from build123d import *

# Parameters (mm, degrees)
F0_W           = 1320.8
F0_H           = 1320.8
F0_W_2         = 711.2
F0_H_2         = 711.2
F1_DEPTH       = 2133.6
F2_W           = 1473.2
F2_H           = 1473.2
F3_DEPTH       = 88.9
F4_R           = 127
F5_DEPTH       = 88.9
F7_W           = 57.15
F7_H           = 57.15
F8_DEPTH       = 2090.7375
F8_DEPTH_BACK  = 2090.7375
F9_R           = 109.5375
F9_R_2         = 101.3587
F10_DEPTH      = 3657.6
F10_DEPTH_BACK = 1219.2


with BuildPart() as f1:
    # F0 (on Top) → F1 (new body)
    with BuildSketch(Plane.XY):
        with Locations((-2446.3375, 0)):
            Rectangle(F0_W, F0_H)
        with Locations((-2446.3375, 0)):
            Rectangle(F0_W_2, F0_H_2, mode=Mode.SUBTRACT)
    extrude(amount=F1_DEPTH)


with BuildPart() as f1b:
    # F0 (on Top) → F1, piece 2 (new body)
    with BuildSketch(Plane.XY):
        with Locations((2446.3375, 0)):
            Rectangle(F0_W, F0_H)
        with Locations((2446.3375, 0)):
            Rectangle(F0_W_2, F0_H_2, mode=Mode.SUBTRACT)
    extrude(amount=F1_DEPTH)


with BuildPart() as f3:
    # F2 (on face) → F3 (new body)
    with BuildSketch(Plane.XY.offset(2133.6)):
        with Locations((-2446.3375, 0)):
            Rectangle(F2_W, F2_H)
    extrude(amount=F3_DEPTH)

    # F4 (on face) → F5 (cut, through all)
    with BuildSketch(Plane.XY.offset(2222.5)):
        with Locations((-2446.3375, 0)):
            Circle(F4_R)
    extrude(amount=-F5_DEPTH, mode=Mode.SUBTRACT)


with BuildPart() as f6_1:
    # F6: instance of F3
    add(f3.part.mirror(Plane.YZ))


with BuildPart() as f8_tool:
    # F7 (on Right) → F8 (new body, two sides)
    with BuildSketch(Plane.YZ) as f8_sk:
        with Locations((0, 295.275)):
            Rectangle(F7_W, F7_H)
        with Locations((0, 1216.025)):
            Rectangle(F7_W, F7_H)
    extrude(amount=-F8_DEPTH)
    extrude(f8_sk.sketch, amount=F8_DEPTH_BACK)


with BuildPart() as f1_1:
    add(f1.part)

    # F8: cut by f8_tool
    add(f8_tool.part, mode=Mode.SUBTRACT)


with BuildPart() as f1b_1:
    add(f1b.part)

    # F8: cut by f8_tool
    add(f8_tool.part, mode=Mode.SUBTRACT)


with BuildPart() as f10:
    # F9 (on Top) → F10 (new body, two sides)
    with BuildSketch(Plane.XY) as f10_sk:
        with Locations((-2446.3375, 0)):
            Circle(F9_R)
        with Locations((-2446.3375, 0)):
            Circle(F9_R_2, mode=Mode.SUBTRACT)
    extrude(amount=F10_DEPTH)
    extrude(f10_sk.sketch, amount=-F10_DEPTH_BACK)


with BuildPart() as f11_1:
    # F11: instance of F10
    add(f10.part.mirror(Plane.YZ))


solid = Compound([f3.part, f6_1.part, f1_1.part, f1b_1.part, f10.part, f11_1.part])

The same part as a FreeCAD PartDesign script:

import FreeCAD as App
import Part
import Sketcher

V = App.Vector
Q = App.Units.Quantity

doc = App.newDocument("Part")
params = doc.addObject("Spreadsheet::Sheet", "Params")
for row, (alias, value) in enumerate([
    ("sketch1_width", "52 in"),
    ("sketch1_width2", "28 in"),
    ("pad1_length", "84 in"),
    ("sketch2_width", "52 in"),
    ("sketch2_width2", "28 in"),
    ("pad2_length", "84 in"),
    ("sketch3_width", "58 in"),
    ("pad3_length", "3.5 in"),
    ("sketch4_diameter", "10 in"),
    ("sketch5_width", "2.25 in"),
    ("pad4_length", "82.3125 in"),
    ("pad4_length2", "82.3125 in"),
    ("sketch6_diameter", "8.625 in"),
    ("sketch6_diameter2", "7.981 in"),
    ("pad5_length", "144 in"),
    ("pad5_length2", "48 in"),
], start=1):
    params.set(f"A{row}", alias)
    params.set(f"B{row}", "=" + value)
    params.setAlias(f"B{row}", alias)

body = doc.addObject("PartDesign::Body", "Body")

# Sketch on XY plane
sketch1 = body.newObject("Sketcher::SketchObject", "Sketch")
sketch1.AttachmentSupport = (doc.getObject("XY_Plane"), [""])
sketch1.MapMode = "FlatFace"
sketch1.addGeometry(Part.LineSegment(V(-3106.7375, 660.4, 0), V(-3106.7375, -660.4, 0)), False)
sketch1.addGeometry(Part.LineSegment(V(-3106.7375, -660.4, 0), V(-1785.9375, -660.4, 0)), False)
sketch1.addGeometry(Part.LineSegment(V(-1785.9375, -660.4, 0), V(-1785.9375, 660.4, 0)), False)
sketch1.addGeometry(Part.LineSegment(V(-1785.9375, 660.4, 0), V(-3106.7375, 660.4, 0)), False)
sketch1.addGeometry(Part.LineSegment(V(-2090.7375, -355.6, 0), V(-2801.9375, -355.6, 0)), False)
sketch1.addGeometry(Part.LineSegment(V(-2801.9375, -355.6, 0), V(-2801.9375, 355.6, 0)), False)
sketch1.addGeometry(Part.LineSegment(V(-2801.9375, 355.6, 0), V(-2090.7375, 355.6, 0)), False)
sketch1.addGeometry(Part.LineSegment(V(-2090.7375, 355.6, 0), V(-2090.7375, -355.6, 0)), False)
sketch1.addConstraint(Sketcher.Constraint("Coincident", 0, 2, 1, 1))
sketch1.addConstraint(Sketcher.Constraint("Coincident", 1, 2, 2, 1))
sketch1.addConstraint(Sketcher.Constraint("Coincident", 2, 2, 3, 1))
sketch1.addConstraint(Sketcher.Constraint("Coincident", 3, 2, 0, 1))
sketch1.addConstraint(Sketcher.Constraint("Coincident", 4, 2, 5, 1))
sketch1.addConstraint(Sketcher.Constraint("Coincident", 5, 2, 6, 1))
sketch1.addConstraint(Sketcher.Constraint("Coincident", 6, 2, 7, 1))
sketch1.addConstraint(Sketcher.Constraint("Coincident", 7, 2, 4, 1))
sketch1.addConstraint(Sketcher.Constraint("Vertical", 0))
sketch1.addConstraint(Sketcher.Constraint("Horizontal", 1))
sketch1.addConstraint(Sketcher.Constraint("Vertical", 2))
sketch1.addConstraint(Sketcher.Constraint("Horizontal", 3))
sketch1.addConstraint(Sketcher.Constraint("Horizontal", 4))
sketch1.addConstraint(Sketcher.Constraint("Vertical", 5))
sketch1.addConstraint(Sketcher.Constraint("Horizontal", 6))
sketch1.addConstraint(Sketcher.Constraint("Vertical", 7))
sketch1.addConstraint(Sketcher.Constraint("Equal", 3, 0))
sketch1.addConstraint(Sketcher.Constraint("Equal", 6, 5))
sketch1.addConstraint(Sketcher.Constraint("DistanceX", 1, 1, 1, 2, Q("52 in")))
sketch1.addConstraint(Sketcher.Constraint("DistanceX", 4, 2, 4, 1, Q("28 in")))
sketch1.addConstraint(Sketcher.Constraint("DistanceY", 0, 2, -1, 1, Q("26 in")))
sketch1.addConstraint(Sketcher.Constraint("DistanceY", 4, 2, -1, 1, Q("14 in")))
sketch1.addConstraint(Sketcher.Constraint("DistanceX", 0, 2, 4, 2, Q("12 in")))
sketch1.addConstraint(Sketcher.Constraint("DistanceX", 0, 2, -1, 1, Q("122.3125 in")))
sketch1.setExpression("Constraints[18]", "Params.sketch1_width")
sketch1.setExpression("Constraints[19]", "Params.sketch1_width2")
pad1 = body.newObject("PartDesign::Pad", "Pad")
pad1.Profile = sketch1
pad1.setExpression("Length", "Params.pad1_length")
body2 = doc.addObject("PartDesign::Body", "Body001")

# Sketch on XY plane
sketch2 = body2.newObject("Sketcher::SketchObject", "Sketch001")
sketch2.AttachmentSupport = (doc.getObject("XY_Plane001"), [""])
sketch2.MapMode = "FlatFace"
sketch2.addGeometry(Part.LineSegment(V(1785.9375, 660.4, 0), V(1785.9375, -660.4, 0)), False)
sketch2.addGeometry(Part.LineSegment(V(1785.9375, -660.4, 0), V(3106.7375, -660.4, 0)), False)
sketch2.addGeometry(Part.LineSegment(V(3106.7375, -660.4, 0), V(3106.7375, 660.4, 0)), False)
sketch2.addGeometry(Part.LineSegment(V(3106.7375, 660.4, 0), V(1785.9375, 660.4, 0)), False)
sketch2.addGeometry(Part.LineSegment(V(2801.9375, -355.6, 0), V(2090.7375, -355.6, 0)), False)
sketch2.addGeometry(Part.LineSegment(V(2090.7375, -355.6, 0), V(2090.7375, 355.6, 0)), False)
sketch2.addGeometry(Part.LineSegment(V(2090.7375, 355.6, 0), V(2801.9375, 355.6, 0)), False)
sketch2.addGeometry(Part.LineSegment(V(2801.9375, 355.6, 0), V(2801.9375, -355.6, 0)), False)
sketch2.addConstraint(Sketcher.Constraint("Coincident", 0, 2, 1, 1))
sketch2.addConstraint(Sketcher.Constraint("Coincident", 1, 2, 2, 1))
sketch2.addConstraint(Sketcher.Constraint("Coincident", 2, 2, 3, 1))
sketch2.addConstraint(Sketcher.Constraint("Coincident", 3, 2, 0, 1))
sketch2.addConstraint(Sketcher.Constraint("Coincident", 4, 2, 5, 1))
sketch2.addConstraint(Sketcher.Constraint("Coincident", 5, 2, 6, 1))
sketch2.addConstraint(Sketcher.Constraint("Coincident", 6, 2, 7, 1))
sketch2.addConstraint(Sketcher.Constraint("Coincident", 7, 2, 4, 1))
sketch2.addConstraint(Sketcher.Constraint("Vertical", 0))
sketch2.addConstraint(Sketcher.Constraint("Horizontal", 1))
sketch2.addConstraint(Sketcher.Constraint("Vertical", 2))
sketch2.addConstraint(Sketcher.Constraint("Horizontal", 3))
sketch2.addConstraint(Sketcher.Constraint("Horizontal", 4))
sketch2.addConstraint(Sketcher.Constraint("Vertical", 5))
sketch2.addConstraint(Sketcher.Constraint("Horizontal", 6))
sketch2.addConstraint(Sketcher.Constraint("Vertical", 7))
sketch2.addConstraint(Sketcher.Constraint("Equal", 3, 0))
sketch2.addConstraint(Sketcher.Constraint("Equal", 6, 5))
sketch2.addConstraint(Sketcher.Constraint("DistanceX", 1, 1, 1, 2, Q("52 in")))
sketch2.addConstraint(Sketcher.Constraint("DistanceX", 4, 2, 4, 1, Q("28 in")))
sketch2.addConstraint(Sketcher.Constraint("DistanceY", 0, 2, -1, 1, Q("26 in")))
sketch2.addConstraint(Sketcher.Constraint("DistanceY", 4, 2, -1, 1, Q("14 in")))
sketch2.addConstraint(Sketcher.Constraint("DistanceX", 0, 2, 4, 2, Q("12 in")))
sketch2.addConstraint(Sketcher.Constraint("DistanceX", -1, 1, 0, 2, Q("70.3125 in")))
sketch2.setExpression("Constraints[18]", "Params.sketch2_width")
sketch2.setExpression("Constraints[19]", "Params.sketch2_width2")
pad2 = body2.newObject("PartDesign::Pad", "Pad001")
pad2.Profile = sketch2
pad2.setExpression("Length", "Params.pad2_length")
body3 = doc.addObject("PartDesign::Body", "Body002")

# Sketch on XY plane
sketch3 = body3.newObject("Sketcher::SketchObject", "Sketch002")
sketch3.AttachmentSupport = (doc.getObject("XY_Plane002"), [""])
sketch3.MapMode = "FlatFace"
sketch3.AttachmentOffset = App.Placement(V(0, 0, 84 * 25.4), App.Rotation())
sketch3.addGeometry(Part.LineSegment(V(-3182.9375, 736.6, 0), V(-3182.9375, -736.6, 0)), False)
sketch3.addGeometry(Part.LineSegment(V(-3182.9375, -736.6, 0), V(-1709.7375, -736.6, 0)), False)
sketch3.addGeometry(Part.LineSegment(V(-1709.7375, -736.6, 0), V(-1709.7375, 736.6, 0)), False)
sketch3.addGeometry(Part.LineSegment(V(-1709.7375, 736.6, 0), V(-3182.9375, 736.6, 0)), False)
sketch3.addConstraint(Sketcher.Constraint("Coincident", 0, 2, 1, 1))
sketch3.addConstraint(Sketcher.Constraint("Coincident", 1, 2, 2, 1))
sketch3.addConstraint(Sketcher.Constraint("Coincident", 2, 2, 3, 1))
sketch3.addConstraint(Sketcher.Constraint("Coincident", 3, 2, 0, 1))
sketch3.addConstraint(Sketcher.Constraint("Vertical", 0))
sketch3.addConstraint(Sketcher.Constraint("Horizontal", 1))
sketch3.addConstraint(Sketcher.Constraint("Vertical", 2))
sketch3.addConstraint(Sketcher.Constraint("Horizontal", 3))
sketch3.addConstraint(Sketcher.Constraint("Equal", 3, 0))
sketch3.addConstraint(Sketcher.Constraint("DistanceX", 1, 1, 1, 2, Q("58 in")))
sketch3.addConstraint(Sketcher.Constraint("DistanceY", 0, 2, -1, 1, Q("29 in")))
sketch3.addConstraint(Sketcher.Constraint("DistanceX", 0, 2, -1, 1, Q("125.3125 in")))
sketch3.setExpression("Constraints[9]", "Params.sketch3_width")
pad3 = body3.newObject("PartDesign::Pad", "Pad002")
pad3.Profile = sketch3
pad3.setExpression("Length", "Params.pad3_length")

# Sketch on XY plane
sketch4 = body3.newObject("Sketcher::SketchObject", "Sketch003")
sketch4.AttachmentSupport = (doc.getObject("XY_Plane002"), [""])
sketch4.MapMode = "FlatFace"
sketch4.AttachmentOffset = App.Placement(V(0, 0, 87.5 * 25.4), App.Rotation())
sketch4.addGeometry(Part.Circle(V(-2446.3375, 0, 0), V(0, 0, 1), 127), False)
sketch4.addConstraint(Sketcher.Constraint("PointOnObject", 0, 3, -1))
sketch4.addConstraint(Sketcher.Constraint("Diameter", 0, Q("10 in")))
sketch4.addConstraint(Sketcher.Constraint("DistanceX", 0, 3, -1, 1, Q("96.3125 in")))
sketch4.setExpression("Constraints[1]", "Params.sketch4_diameter")
pocket1 = body3.newObject("PartDesign::Pocket", "Pocket")
pocket1.Profile = sketch4
pocket1.Type = "ThroughAll"
body4 = doc.addObject("PartDesign::Body", "Body003")
doc.recompute()

mirroring = doc.addObject("Part::Mirroring", "Mirroring")
mirroring.Source = body3
mirroring.Base = V(0, 0, 0)
mirroring.Normal = V(1, 0, 0)
body4.BaseFeature = mirroring
doc.recompute()
body5 = doc.addObject("PartDesign::Body", "Body004")
body5.AllowCompound = True

# Sketch on YZ plane
sketch5 = body5.newObject("Sketcher::SketchObject", "Sketch004")
sketch5.AttachmentSupport = (doc.getObject("YZ_Plane004"), [""])
sketch5.MapMode = "FlatFace"
sketch5.addGeometry(Part.LineSegment(V(-28.575, 323.85, 0), V(-28.575, 266.7, 0)), False)
sketch5.addGeometry(Part.LineSegment(V(-28.575, 266.7, 0), V(28.575, 266.7, 0)), False)
sketch5.addGeometry(Part.LineSegment(V(28.575, 266.7, 0), V(28.575, 323.85, 0)), False)
sketch5.addGeometry(Part.LineSegment(V(28.575, 323.85, 0), V(-28.575, 323.85, 0)), False)
sketch5.addGeometry(Part.LineSegment(V(-28.575, 1244.6, 0), V(-28.575, 1187.45, 0)), False)
sketch5.addGeometry(Part.LineSegment(V(-28.575, 1187.45, 0), V(28.575, 1187.45, 0)), False)
sketch5.addGeometry(Part.LineSegment(V(28.575, 1187.45, 0), V(28.575, 1244.6, 0)), False)
sketch5.addGeometry(Part.LineSegment(V(28.575, 1244.6, 0), V(-28.575, 1244.6, 0)), False)
sketch5.addConstraint(Sketcher.Constraint("Coincident", 0, 2, 1, 1))
sketch5.addConstraint(Sketcher.Constraint("Coincident", 1, 2, 2, 1))
sketch5.addConstraint(Sketcher.Constraint("Coincident", 2, 2, 3, 1))
sketch5.addConstraint(Sketcher.Constraint("Coincident", 3, 2, 0, 1))
sketch5.addConstraint(Sketcher.Constraint("Coincident", 4, 2, 5, 1))
sketch5.addConstraint(Sketcher.Constraint("Coincident", 5, 2, 6, 1))
sketch5.addConstraint(Sketcher.Constraint("Coincident", 6, 2, 7, 1))
sketch5.addConstraint(Sketcher.Constraint("Coincident", 7, 2, 4, 1))
sketch5.addConstraint(Sketcher.Constraint("Vertical", 0))
sketch5.addConstraint(Sketcher.Constraint("Horizontal", 1))
sketch5.addConstraint(Sketcher.Constraint("Vertical", 2))
sketch5.addConstraint(Sketcher.Constraint("Horizontal", 3))
sketch5.addConstraint(Sketcher.Constraint("Vertical", 4))
sketch5.addConstraint(Sketcher.Constraint("Horizontal", 5))
sketch5.addConstraint(Sketcher.Constraint("Vertical", 6))
sketch5.addConstraint(Sketcher.Constraint("Horizontal", 7))
sketch5.addConstraint(Sketcher.Constraint("Vertical", 3, 2, 4, 2))
sketch5.addConstraint(Sketcher.Constraint("Vertical", 2, 2, 5, 2))
sketch5.addConstraint(Sketcher.Constraint("Equal", 7, 0))
sketch5.addConstraint(Sketcher.Constraint("Equal", 2, 4))
sketch5.addConstraint(Sketcher.Constraint("DistanceY", -1, 1, 6, 2, Q("49 in")))
sketch5.addConstraint(Sketcher.Constraint("DistanceY", 3, 2, 4, 2, Q("34 in")))
sketch5.addConstraint(Sketcher.Constraint("DistanceX", 1, 1, 1, 2, Q("2.25 in")))
sketch5.addConstraint(Sketcher.Constraint("DistanceX", 0, 2, -1, 1, Q("1.125 in")))
sketch5.setExpression("Constraints[22]", "Params.sketch5_width")
pad4 = body5.newObject("PartDesign::Pad", "Pad003")
pad4.Profile = sketch5
pad4.Type = "TwoLengths"
pad4.setExpression("Length", "Params.pad4_length")
pad4.setExpression("Length2", "Params.pad4_length2")
pad4.Reversed = True
doc.recompute()

body6 = doc.addObject("PartDesign::Body", "Body005")
body6.BaseFeature = body5
boolean = body.newObject("PartDesign::Boolean", "Boolean")
boolean.Type = "Cut"
boolean.addObjects([body6])
doc.recompute()

boolean2 = body2.newObject("PartDesign::Boolean", "Boolean001")
boolean2.Type = "Cut"
boolean2.addObjects([body5])
body7 = doc.addObject("PartDesign::Body", "Body006")

# Sketch on XY plane
sketch6 = body7.newObject("Sketcher::SketchObject", "Sketch005")
sketch6.AttachmentSupport = (doc.getObject("XY_Plane006"), [""])
sketch6.MapMode = "FlatFace"
sketch6.addGeometry(Part.Circle(V(-2446.3375, 0, 0), V(0, 0, 1), 109.5375), False)
sketch6.addGeometry(Part.Circle(V(-2446.3375, 0, 0), V(0, 0, 1), 101.3587), False)
sketch6.addConstraint(Sketcher.Constraint("Coincident", 1, 3, 0, 3))
sketch6.addConstraint(Sketcher.Constraint("PointOnObject", 0, 3, -1))
sketch6.addConstraint(Sketcher.Constraint("Diameter", 0, Q("8.625 in")))
sketch6.addConstraint(Sketcher.Constraint("Diameter", 1, Q("7.981 in")))
sketch6.addConstraint(Sketcher.Constraint("DistanceX", 0, 3, -1, 1, Q("96.3125 in")))
sketch6.setExpression("Constraints[2]", "Params.sketch6_diameter")
sketch6.setExpression("Constraints[3]", "Params.sketch6_diameter2")
pad5 = body7.newObject("PartDesign::Pad", "Pad004")
pad5.Profile = sketch6
pad5.Type = "TwoLengths"
pad5.setExpression("Length", "Params.pad5_length")
pad5.setExpression("Length2", "Params.pad5_length2")
body8 = doc.addObject("PartDesign::Body", "Body007")
doc.recompute()

mirroring2 = doc.addObject("Part::Mirroring", "Mirroring001")
mirroring2.Source = body7
mirroring2.Base = V(0, 0, 0)
mirroring2.Normal = V(1, 0, 0)
body8.BaseFeature = mirroring2
doc.recompute()
mirroring.Visibility = False
mirroring2.Visibility = False

doc.recompute()
